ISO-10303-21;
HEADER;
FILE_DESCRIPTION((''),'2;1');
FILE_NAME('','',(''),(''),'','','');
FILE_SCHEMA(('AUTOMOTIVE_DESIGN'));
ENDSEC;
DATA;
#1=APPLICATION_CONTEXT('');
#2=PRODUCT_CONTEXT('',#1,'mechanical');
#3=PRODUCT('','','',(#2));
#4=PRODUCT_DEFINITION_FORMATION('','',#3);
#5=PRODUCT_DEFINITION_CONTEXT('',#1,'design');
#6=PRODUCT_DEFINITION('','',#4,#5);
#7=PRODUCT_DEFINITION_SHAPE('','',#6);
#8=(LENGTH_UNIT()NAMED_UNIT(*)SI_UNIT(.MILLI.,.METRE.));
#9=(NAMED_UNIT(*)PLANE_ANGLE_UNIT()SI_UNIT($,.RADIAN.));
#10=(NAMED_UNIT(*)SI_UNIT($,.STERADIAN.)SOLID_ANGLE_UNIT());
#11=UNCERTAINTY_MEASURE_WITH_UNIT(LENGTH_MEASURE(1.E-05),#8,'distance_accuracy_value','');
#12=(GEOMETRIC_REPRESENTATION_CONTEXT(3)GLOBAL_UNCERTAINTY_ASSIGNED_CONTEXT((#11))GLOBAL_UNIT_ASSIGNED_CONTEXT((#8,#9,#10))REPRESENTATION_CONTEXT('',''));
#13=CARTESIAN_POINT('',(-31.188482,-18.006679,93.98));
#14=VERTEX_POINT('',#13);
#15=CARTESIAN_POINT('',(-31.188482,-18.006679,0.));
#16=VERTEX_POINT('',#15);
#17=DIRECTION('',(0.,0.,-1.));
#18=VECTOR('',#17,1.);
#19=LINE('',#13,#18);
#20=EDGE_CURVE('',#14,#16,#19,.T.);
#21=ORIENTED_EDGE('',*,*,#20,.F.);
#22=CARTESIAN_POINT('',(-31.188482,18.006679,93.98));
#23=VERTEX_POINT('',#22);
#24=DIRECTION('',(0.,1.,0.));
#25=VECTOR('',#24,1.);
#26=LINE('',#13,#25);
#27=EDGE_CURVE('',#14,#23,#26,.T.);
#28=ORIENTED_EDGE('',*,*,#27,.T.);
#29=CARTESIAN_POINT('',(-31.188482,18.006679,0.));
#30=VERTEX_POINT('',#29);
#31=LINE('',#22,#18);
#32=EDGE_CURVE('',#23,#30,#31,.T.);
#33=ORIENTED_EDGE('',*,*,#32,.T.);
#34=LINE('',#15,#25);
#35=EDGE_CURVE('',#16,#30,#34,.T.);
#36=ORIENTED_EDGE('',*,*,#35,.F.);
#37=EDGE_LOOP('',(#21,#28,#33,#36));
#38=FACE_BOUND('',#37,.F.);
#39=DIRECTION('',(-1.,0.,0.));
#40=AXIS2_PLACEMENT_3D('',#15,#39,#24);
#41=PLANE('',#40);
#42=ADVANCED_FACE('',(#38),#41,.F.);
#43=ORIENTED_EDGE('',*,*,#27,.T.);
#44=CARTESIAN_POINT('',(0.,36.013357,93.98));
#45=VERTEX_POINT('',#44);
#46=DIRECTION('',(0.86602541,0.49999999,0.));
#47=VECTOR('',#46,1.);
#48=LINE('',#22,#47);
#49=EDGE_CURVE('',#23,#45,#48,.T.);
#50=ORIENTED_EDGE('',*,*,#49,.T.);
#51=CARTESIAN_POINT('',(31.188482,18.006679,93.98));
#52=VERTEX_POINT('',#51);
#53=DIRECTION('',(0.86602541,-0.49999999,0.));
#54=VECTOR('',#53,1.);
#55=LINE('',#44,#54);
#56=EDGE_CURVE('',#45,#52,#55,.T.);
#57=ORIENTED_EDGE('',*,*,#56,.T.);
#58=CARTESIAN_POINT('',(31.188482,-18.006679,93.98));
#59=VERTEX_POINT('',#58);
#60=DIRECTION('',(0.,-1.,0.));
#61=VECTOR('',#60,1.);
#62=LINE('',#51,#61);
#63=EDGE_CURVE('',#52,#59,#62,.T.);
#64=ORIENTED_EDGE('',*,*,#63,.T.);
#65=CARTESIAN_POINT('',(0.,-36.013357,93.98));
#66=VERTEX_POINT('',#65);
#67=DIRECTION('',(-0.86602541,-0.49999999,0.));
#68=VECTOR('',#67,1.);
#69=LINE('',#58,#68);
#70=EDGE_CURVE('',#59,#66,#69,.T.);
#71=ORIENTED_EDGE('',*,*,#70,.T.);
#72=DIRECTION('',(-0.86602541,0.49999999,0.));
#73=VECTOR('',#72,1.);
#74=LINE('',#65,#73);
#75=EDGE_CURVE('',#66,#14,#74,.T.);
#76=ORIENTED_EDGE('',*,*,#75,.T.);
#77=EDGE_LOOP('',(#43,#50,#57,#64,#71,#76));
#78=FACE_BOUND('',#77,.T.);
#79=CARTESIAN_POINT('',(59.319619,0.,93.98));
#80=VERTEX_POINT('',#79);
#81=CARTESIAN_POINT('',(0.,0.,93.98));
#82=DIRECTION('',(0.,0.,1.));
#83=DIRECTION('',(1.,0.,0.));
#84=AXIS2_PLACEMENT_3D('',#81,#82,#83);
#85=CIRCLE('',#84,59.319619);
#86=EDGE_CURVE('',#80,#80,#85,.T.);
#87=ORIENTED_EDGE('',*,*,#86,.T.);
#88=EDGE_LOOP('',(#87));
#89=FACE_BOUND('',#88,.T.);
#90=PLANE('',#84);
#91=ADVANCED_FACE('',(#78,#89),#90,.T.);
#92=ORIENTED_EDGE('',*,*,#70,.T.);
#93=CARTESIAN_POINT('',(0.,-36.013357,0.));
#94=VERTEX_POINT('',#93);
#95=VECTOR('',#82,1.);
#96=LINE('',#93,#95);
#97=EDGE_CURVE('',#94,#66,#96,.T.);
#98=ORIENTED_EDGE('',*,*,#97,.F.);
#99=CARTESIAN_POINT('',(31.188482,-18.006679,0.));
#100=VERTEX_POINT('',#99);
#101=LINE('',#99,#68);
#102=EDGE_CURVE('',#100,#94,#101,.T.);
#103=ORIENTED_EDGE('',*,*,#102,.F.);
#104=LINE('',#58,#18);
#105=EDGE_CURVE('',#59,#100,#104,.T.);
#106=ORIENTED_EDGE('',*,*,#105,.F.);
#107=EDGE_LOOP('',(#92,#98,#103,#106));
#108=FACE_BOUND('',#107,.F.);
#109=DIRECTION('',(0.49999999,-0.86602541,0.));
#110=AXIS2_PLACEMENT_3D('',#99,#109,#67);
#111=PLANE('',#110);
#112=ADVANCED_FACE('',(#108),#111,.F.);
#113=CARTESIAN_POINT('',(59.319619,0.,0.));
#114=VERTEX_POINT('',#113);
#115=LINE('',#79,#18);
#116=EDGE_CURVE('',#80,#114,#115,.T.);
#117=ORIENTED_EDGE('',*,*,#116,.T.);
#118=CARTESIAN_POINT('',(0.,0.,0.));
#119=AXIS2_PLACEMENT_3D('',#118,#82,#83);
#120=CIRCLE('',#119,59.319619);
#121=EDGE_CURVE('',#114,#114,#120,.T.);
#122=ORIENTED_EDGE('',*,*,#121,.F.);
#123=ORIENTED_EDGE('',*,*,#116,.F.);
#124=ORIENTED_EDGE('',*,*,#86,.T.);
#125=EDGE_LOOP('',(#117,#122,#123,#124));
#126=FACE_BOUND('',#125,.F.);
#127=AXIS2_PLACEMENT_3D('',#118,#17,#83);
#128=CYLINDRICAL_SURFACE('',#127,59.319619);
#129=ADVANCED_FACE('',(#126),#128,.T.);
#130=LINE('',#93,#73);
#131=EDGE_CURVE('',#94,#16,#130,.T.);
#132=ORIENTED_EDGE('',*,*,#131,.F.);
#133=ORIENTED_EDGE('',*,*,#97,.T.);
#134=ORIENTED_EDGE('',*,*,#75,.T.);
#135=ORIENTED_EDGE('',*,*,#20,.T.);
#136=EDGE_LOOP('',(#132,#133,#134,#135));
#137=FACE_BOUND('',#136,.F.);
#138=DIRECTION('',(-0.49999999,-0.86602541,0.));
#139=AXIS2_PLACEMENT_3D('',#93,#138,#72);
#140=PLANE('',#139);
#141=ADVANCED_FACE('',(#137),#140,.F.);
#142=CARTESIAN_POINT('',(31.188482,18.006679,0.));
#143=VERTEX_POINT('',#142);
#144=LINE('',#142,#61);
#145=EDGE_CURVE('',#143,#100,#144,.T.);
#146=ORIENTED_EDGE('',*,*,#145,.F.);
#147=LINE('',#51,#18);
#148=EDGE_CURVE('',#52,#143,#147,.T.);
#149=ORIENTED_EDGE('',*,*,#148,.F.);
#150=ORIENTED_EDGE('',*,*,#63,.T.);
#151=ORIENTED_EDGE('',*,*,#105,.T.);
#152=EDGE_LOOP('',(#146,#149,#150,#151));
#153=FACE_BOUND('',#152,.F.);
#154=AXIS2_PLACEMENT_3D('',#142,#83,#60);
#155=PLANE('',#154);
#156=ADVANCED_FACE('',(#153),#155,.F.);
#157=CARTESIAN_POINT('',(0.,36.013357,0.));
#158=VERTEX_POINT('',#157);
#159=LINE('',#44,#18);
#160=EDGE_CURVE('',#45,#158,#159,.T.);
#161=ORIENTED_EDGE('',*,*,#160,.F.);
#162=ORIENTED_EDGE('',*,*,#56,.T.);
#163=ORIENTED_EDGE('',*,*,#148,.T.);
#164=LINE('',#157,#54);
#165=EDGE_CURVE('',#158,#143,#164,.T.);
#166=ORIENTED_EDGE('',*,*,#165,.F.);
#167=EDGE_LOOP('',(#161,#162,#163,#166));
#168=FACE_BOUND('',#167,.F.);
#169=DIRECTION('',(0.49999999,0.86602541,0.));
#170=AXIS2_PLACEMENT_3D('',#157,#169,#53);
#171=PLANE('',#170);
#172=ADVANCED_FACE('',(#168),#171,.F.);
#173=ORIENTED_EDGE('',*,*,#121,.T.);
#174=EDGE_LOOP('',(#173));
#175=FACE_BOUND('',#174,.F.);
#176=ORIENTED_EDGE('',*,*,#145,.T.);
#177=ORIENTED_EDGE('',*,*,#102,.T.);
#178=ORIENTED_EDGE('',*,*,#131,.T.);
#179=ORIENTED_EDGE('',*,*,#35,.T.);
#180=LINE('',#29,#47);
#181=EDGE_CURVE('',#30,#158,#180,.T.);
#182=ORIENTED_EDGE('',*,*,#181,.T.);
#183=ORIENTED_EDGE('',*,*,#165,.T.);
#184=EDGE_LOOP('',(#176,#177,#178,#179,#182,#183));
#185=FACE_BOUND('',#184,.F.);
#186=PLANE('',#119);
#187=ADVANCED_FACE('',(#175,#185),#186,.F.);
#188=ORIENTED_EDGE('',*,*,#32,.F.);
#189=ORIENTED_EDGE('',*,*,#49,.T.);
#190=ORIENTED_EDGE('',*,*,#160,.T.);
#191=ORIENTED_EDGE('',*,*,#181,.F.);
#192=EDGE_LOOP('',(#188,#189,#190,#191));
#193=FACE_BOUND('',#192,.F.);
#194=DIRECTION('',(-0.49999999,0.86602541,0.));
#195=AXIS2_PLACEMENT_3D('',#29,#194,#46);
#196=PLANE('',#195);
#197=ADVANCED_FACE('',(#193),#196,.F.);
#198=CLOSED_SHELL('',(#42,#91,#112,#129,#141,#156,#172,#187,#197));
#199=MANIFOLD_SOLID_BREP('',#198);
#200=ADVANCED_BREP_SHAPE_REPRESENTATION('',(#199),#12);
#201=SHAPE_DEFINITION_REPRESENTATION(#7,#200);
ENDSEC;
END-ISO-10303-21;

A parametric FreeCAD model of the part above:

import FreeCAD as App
import Part
import Sketcher
from FreeCAD import Vector
Q = App.Units.Quantity

doc = App.newDocument("Part")
body = doc.addObject("PartDesign::Body", "Body")

sketch1 = doc.addObject("Sketcher::SketchObject", "Sketch")
body.addObject(sketch1)
sketch1.AttachmentSupport = (doc.XY_Plane, [""])
sketch1.MapMode = "FlatFace"
sketch1.addGeometry([
    Part.Circle(Vector(0, 0, 0), Vector(0, 0, 1), 59),
    Part.LineSegment(Vector(31, -18, 0), Vector(0, -36, 0)),
    Part.LineSegment(Vector(0, -36, 0), Vector(-31, -18, 0)),
    Part.LineSegment(Vector(-31, -18, 0), Vector(-31, 18, 0)),
    Part.LineSegment(Vector(-31, 18, 0), Vector(0, 36, 0)),
    Part.LineSegment(Vector(0, 36, 0), Vector(31, 18, 0)),
    Part.LineSegment(Vector(31, 18, 0), Vector(31, -18, 0)),
], False)
sketch1.addConstraint([
    Sketcher.Constraint("Coincident", 1, 2, 2, 1),
    Sketcher.Constraint("Coincident", 2, 2, 3, 1),
    Sketcher.Constraint("Coincident", 3, 2, 4, 1),
    Sketcher.Constraint("Coincident", 4, 2, 5, 1),
    Sketcher.Constraint("Coincident", 5, 2, 6, 1),
    Sketcher.Constraint("Coincident", 6, 2, 1, 1),
    Sketcher.Constraint("Vertical", 3),
    Sketcher.Constraint("Vertical", 6),
    Sketcher.Constraint("Coincident", 0, 3, -1, 1),
    Sketcher.Constraint("Symmetric", 1, 2, 4, 2, -1, 1),
    Sketcher.Constraint("Symmetric", 2, 2, 5, 2, -1, 1),
    Sketcher.Constraint("PointOnObject", 1, 2, -2),
    Sketcher.Constraint("Parallel", 1, 4),
    Sketcher.Constraint("Horizontal", 3, 2, 5, 2),
    Sketcher.Constraint("Angle", 1, Q("-150.000001 deg")),
    Sketcher.Constraint("Diameter", 0, Q("118.639238 mm")),
    Sketcher.Constraint("DistanceY", 3, 1, 3, 2, Q("36.013358 mm")),
    Sketcher.Constraint("DistanceY", 1, 2, 2, 2, Q("18.006678 mm")),
])
pad1 = doc.addObject("PartDesign::Pad", "Pad")
body.addObject(pad1)
pad1.Profile = sketch1
pad1.Length = Q("3.7 in")

sketch2 = doc.addObject("Sketcher::SketchObject", "Sketch001")
body.addObject(sketch2)
sketch2.AttachmentSupport = (doc.XY_Plane, [""])
sketch2.MapMode = "FlatFace"
sketch2.addGeometry([
    Part.Circle(Vector(0, 0, 0), Vector(0, 0, 1), 59),
    Part.LineSegment(Vector(31, -18, 0), Vector(0, -36, 0)),
    Part.LineSegment(Vector(0, -36, 0), Vector(-31, -18, 0)),
    Part.LineSegment(Vector(-31, -18, 0), Vector(-31, 18, 0)),
    Part.LineSegment(Vector(-31, 18, 0), Vector(0, 36, 0)),
    Part.LineSegment(Vector(0, 36, 0), Vector(31, 18, 0)),
    Part.LineSegment(Vector(31, 18, 0), Vector(31, -18, 0)),
], False)
sketch2.addConstraint([
    Sketcher.Constraint("Coincident", 1, 2, 2, 1),
    Sketcher.Constraint("Coincident", 2, 2, 3, 1),
    Sketcher.Constraint("Coincident", 3, 2, 4, 1),
    Sketcher.Constraint("Coincident", 4, 2, 5, 1),
    Sketcher.Constraint("Coincident", 5, 2, 6, 1),
    Sketcher.Constraint("Coincident", 6, 2, 1, 1),
    Sketcher.Constraint("Vertical", 3),
    Sketcher.Constraint("Vertical", 6),
    Sketcher.Constraint("Coincident", 0, 3, -1, 1),
    Sketcher.Constraint("Symmetric", 1, 2, 4, 2, -1, 1),
    Sketcher.Constraint("Symmetric", 2, 2, 5, 2, -1, 1),
    Sketcher.Constraint("PointOnObject", 1, 2, -2),
    Sketcher.Constraint("Parallel", 1, 4),
    Sketcher.Constraint("Horizontal", 3, 2, 5, 2),
    Sketcher.Constraint("Angle", 1, Q("-150.000001 deg")),
    Sketcher.Constraint("Diameter", 0, Q("118.639238 mm")),
    Sketcher.Constraint("DistanceY", 3, 1, 3, 2, Q("36.013358 mm")),
    Sketcher.Constraint("DistanceY", 1, 2, 2, 2, Q("18.006678 mm")),
])
pad2 = doc.addObject("PartDesign::Pad", "Pad001")
body.addObject(pad2)
pad2.Profile = sketch2
pad2.Length = Q("1 in")

doc.recompute()
